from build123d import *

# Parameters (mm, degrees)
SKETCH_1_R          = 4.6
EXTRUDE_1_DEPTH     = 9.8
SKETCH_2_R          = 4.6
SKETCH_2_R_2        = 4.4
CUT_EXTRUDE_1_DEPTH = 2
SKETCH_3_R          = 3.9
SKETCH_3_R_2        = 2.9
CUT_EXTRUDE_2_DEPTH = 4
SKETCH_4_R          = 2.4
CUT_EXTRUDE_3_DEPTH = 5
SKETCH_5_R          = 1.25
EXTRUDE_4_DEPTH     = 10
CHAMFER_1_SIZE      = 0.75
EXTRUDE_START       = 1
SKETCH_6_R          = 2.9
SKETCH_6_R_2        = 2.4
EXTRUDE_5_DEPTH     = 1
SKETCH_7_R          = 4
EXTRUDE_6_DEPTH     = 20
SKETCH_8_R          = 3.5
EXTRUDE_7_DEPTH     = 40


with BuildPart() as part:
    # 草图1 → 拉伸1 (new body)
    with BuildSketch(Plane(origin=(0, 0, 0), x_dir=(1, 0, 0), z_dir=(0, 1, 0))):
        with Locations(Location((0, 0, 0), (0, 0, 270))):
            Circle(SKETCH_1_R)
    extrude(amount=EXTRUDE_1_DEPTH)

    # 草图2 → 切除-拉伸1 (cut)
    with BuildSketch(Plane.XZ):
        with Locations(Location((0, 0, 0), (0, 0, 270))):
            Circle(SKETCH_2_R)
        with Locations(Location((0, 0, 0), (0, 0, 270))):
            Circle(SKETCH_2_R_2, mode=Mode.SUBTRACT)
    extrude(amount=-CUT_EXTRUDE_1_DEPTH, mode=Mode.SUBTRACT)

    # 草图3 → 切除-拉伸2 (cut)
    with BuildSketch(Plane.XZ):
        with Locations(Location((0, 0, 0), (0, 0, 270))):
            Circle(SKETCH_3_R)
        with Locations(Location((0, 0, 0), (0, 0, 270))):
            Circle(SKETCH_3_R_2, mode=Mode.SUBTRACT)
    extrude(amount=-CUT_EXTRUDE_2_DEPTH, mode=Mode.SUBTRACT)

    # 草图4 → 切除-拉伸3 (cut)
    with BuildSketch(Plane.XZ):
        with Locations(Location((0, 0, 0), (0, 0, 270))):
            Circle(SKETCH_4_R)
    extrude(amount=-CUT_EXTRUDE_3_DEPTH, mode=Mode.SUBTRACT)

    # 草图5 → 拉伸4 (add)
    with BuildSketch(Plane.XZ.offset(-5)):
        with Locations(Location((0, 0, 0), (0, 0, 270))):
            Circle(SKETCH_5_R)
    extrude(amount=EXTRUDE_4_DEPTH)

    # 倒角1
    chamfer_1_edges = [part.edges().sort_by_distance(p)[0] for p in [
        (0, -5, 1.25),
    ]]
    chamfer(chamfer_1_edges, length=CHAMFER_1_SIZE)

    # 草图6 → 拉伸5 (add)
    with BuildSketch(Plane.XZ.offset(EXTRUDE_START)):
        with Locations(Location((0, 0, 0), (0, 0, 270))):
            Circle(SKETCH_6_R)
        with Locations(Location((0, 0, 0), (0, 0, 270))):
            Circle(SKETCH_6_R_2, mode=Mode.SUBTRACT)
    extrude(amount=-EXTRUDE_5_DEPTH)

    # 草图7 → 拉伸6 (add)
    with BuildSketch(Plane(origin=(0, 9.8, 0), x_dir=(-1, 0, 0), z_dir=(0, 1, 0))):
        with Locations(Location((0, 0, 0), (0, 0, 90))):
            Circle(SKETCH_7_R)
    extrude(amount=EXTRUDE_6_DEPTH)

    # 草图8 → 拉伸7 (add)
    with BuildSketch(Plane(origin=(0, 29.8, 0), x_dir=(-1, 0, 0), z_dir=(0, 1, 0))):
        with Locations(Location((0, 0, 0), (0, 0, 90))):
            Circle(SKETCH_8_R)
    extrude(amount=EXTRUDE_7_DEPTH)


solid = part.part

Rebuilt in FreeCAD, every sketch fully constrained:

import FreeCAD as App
import Part
import Sketcher
Q = App.Units.Quantity


def edges_at(feature, points):
    """Names of the edges that pass closest to the given points."""
    edges = feature.Shape.Edges
    near = lambda p: min(range(len(edges)), key=lambda i: edges[i].distToShape(Part.Vertex(*p))[0])
    return sorted({f"Edge{near(p) + 1}" for p in points})

doc = App.newDocument("Part")
body = doc.addObject("PartDesign::Body", "Body")

# Sketch on XZ plane
sketch1 = body.newObject("Sketcher::SketchObject", "Sketch")
sketch1.AttachmentSupport = (doc.getObject("XZ_Plane"), [""])
sketch1.MapMode = "FlatFace"
sketch1.addGeometry(Part.Circle(App.Vector(0, 0, 0), App.Vector(0, 0, 1), 4.6), False)
sketch1.addConstraint([
    Sketcher.Constraint("Coincident", 0, 3, -1, 1),
    Sketcher.Constraint("Diameter", 0, Q("9.2 mm")),
])
pad1 = body.newObject("PartDesign::Pad", "Pad")
pad1.Profile = sketch1
pad1.Length = 9.8
pad1.Reversed = True

# Sketch on XZ plane
sketch2 = body.newObject("Sketcher::SketchObject", "Sketch001")
sketch2.AttachmentSupport = (doc.getObject("XZ_Plane"), [""])
sketch2.MapMode = "FlatFace"
sketch2.addGeometry([
    Part.Circle(App.Vector(0, 0, 0), App.Vector(0, 0, 1), 4.6),
    Part.Circle(App.Vector(0, 0, 0), App.Vector(0, 0, 1), 4.4),
], False)
sketch2.addConstraint([
    Sketcher.Constraint("Coincident", 0, 3, -1, 1),
    Sketcher.Constraint("Coincident", 1, 3, -1, 1),
    Sketcher.Constraint("Diameter", 0, Q("9.2 mm")),
    Sketcher.Constraint("Diameter", 1, Q("8.8 mm")),
])
pocket1 = body.newObject("PartDesign::Pocket", "Pocket")
pocket1.Profile = sketch2
pocket1.Length = 2

# Sketch on XZ plane
sketch3 = body.newObject("Sketcher::SketchObject", "Sketch002")
sketch3.AttachmentSupport = (doc.getObject("XZ_Plane"), [""])
sketch3.MapMode = "FlatFace"
sketch3.addGeometry([
    Part.Circle(App.Vector(0, 0, 0), App.Vector(0, 0, 1), 3.9),
    Part.Circle(App.Vector(0, 0, 0), App.Vector(0, 0, 1), 2.9),
], False)
sketch3.addConstraint([
    Sketcher.Constraint("Coincident", 0, 3, -1, 1),
    Sketcher.Constraint("Coincident", 1, 3, -1, 1),
    Sketcher.Constraint("Diameter", 0, Q("7.8 mm")),
    Sketcher.Constraint("Diameter", 1, Q("5.8 mm")),
])
pocket2 = body.newObject("PartDesign::Pocket", "Pocket001")
pocket2.Profile = sketch3
pocket2.Length = 4

# Sketch on XZ plane
sketch4 = body.newObject("Sketcher::SketchObject", "Sketch003")
sketch4.AttachmentSupport = (doc.getObject("XZ_Plane"), [""])
sketch4.MapMode = "FlatFace"
sketch4.addGeometry(Part.Circle(App.Vector(0, 0, 0), App.Vector(0, 0, 1), 2.4), False)
sketch4.addConstraint([
    Sketcher.Constraint("Coincident", 0, 3, -1, 1),
    Sketcher.Constraint("Diameter", 0, Q("4.8 mm")),
])
pocket3 = body.newObject("PartDesign::Pocket", "Pocket002")
pocket3.Profile = sketch4
pocket3.Length = 5

# Sketch on XZ plane
sketch5 = body.newObject("Sketcher::SketchObject", "Sketch004")
sketch5.AttachmentSupport = (doc.getObject("XZ_Plane"), [""])
sketch5.MapMode = "FlatFace"
sketch5.AttachmentOffset = App.Placement(App.Vector(0, 0, -5), App.Rotation())
sketch5.addGeometry(Part.Circle(App.Vector(0, 0, 0), App.Vector(0, 0, 1), 1.25), False)
sketch5.addConstraint([
    Sketcher.Constraint("Coincident", 0, 3, -1, 1),
    Sketcher.Constraint("Diameter", 0, Q("2.5 mm")),
])
pad2 = body.newObject("PartDesign::Pad", "Pad001")
pad2.Profile = sketch5
pad2.Length = 10
doc.recompute()

chamfer = body.newObject("PartDesign::Chamfer", "Chamfer")
chamfer.Base = (pad2, edges_at(pad2, [(0, -5, 1.25)]))
chamfer.Size = 0.75

# Sketch on XZ plane
sketch6 = body.newObject("Sketcher::SketchObject", "Sketch005")
sketch6.AttachmentSupport = (doc.getObject("XZ_Plane"), [""])
sketch6.MapMode = "FlatFace"
sketch6.AttachmentOffset = App.Placement(App.Vector(0, 0, 1), App.Rotation())
sketch6.addGeometry([
    Part.Circle(App.Vector(0, 0, 0), App.Vector(0, 0, 1), 2.9),
    Part.Circle(App.Vector(0, 0, 0), App.Vector(0, 0, 1), 2.4),
], False)
sketch6.addConstraint([
    Sketcher.Constraint("Coincident", 0, 3, -1, 1),
    Sketcher.Constraint("Coincident", 1, 3, -1, 1),
    Sketcher.Constraint("Diameter", 0, Q("5.8 mm")),
    Sketcher.Constraint("Diameter", 1, Q("4.8 mm")),
])
pad3 = body.newObject("PartDesign::Pad", "Pad002")
pad3.Profile = sketch6
pad3.Length = 1
pad3.Reversed = True

# Sketch on XZ plane
sketch7 = body.newObject("Sketcher::SketchObject", "Sketch006")
sketch7.AttachmentSupport = (doc.getObject("XZ_Plane"), [""])
sketch7.MapMode = "FlatFace"
sketch7.AttachmentOffset = App.Placement(App.Vector(0, 0, -9.8), App.Rotation())
sketch7.addGeometry(Part.Circle(App.Vector(0, 0, 0), App.Vector(0, 0, 1), 4), False)
sketch7.addConstraint([
    Sketcher.Constraint("Coincident", 0, 3, -1, 1),
    Sketcher.Constraint("Diameter", 0, Q("8 mm")),
])
pad4 = body.newObject("PartDesign::Pad", "Pad003")
pad4.Profile = sketch7
pad4.Length = 20
pad4.Reversed = True

# Sketch on XZ plane
sketch8 = body.newObject("Sketcher::SketchObject", "Sketch007")
sketch8.AttachmentSupport = (doc.getObject("XZ_Plane"), [""])
sketch8.MapMode = "FlatFace"
sketch8.AttachmentOffset = App.Placement(App.Vector(0, 0, -29.8), App.Rotation())
sketch8.addGeometry(Part.Circle(App.Vector(0, 0, 0), App.Vector(0, 0, 1), 3.5), False)
sketch8.addConstraint([
    Sketcher.Constraint("Coincident", 0, 3, -1, 1),
    Sketcher.Constraint("Diameter", 0, Q("7 mm")),
])
pad5 = body.newObject("PartDesign::Pad", "Pad004")
pad5.Profile = sketch8
pad5.Length = 40
pad5.Reversed = True

doc.recompute()
